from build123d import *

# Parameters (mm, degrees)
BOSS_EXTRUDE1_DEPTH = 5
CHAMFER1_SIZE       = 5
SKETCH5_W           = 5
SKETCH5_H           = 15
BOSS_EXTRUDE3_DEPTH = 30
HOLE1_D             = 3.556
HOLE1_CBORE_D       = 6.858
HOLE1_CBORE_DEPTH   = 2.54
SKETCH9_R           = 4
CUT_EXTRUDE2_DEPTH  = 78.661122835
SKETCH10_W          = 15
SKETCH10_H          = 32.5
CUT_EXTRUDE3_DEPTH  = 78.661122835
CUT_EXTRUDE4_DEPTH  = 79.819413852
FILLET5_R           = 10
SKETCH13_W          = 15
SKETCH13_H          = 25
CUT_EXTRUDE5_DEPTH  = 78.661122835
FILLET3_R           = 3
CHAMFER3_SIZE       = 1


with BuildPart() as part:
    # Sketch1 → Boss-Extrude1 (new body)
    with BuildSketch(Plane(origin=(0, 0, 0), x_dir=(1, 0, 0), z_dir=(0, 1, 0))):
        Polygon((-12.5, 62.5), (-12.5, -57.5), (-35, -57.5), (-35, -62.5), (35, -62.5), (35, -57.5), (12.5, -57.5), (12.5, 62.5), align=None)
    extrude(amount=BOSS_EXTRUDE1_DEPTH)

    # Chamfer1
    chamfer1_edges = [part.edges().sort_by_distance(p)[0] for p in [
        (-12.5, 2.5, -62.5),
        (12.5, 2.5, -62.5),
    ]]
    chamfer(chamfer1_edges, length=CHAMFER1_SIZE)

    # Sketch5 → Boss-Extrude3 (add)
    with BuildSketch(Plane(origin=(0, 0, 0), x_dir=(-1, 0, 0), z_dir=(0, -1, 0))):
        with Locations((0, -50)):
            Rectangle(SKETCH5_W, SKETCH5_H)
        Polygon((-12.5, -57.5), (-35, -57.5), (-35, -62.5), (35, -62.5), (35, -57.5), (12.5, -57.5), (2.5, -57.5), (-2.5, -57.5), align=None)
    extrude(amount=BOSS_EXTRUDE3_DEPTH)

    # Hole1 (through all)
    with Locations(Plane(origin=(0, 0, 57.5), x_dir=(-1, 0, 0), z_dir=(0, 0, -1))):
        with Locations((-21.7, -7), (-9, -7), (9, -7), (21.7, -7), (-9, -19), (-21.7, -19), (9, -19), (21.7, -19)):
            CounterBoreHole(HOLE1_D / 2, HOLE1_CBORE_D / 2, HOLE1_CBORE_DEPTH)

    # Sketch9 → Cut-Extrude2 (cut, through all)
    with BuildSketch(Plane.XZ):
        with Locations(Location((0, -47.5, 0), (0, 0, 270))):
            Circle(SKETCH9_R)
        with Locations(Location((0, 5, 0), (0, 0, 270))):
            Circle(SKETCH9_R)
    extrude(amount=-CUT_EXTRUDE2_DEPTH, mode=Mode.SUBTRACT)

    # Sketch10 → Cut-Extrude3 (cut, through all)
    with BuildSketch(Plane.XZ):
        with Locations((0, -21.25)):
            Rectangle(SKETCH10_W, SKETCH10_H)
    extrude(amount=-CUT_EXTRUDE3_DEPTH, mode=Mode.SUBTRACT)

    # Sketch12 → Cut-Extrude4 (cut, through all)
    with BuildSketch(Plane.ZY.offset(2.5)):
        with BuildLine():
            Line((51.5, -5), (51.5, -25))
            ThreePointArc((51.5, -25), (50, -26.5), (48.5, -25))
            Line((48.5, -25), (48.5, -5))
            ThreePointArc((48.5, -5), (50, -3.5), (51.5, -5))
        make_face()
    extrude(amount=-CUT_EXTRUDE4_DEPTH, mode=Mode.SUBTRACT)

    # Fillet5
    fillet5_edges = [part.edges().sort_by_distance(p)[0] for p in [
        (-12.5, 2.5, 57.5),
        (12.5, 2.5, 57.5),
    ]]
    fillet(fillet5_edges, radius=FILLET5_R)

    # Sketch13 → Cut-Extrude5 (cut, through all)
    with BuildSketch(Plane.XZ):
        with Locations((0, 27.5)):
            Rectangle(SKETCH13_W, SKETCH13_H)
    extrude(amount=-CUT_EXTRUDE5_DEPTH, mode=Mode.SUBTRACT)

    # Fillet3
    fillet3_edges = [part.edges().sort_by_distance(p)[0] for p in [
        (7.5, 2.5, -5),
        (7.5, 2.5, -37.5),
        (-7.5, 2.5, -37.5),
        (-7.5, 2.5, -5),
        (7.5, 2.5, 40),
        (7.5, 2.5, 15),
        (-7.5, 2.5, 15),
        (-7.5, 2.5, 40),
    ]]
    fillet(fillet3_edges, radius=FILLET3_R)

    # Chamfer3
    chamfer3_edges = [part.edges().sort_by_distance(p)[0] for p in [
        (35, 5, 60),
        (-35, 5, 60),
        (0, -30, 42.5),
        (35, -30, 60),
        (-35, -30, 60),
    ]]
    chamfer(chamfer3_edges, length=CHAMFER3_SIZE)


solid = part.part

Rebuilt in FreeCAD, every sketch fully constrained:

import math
import FreeCAD as App
import Part
import Sketcher
from FreeCAD import Vector
Q = App.Units.Quantity


def edges_at(feature, points):
    """Names of the edges that pass closest to the given points."""
    edges = feature.Shape.Edges
    near = lambda p: min(range(len(edges)), key=lambda i: edges[i].distToShape(Part.Vertex(*p))[0])
    return sorted({f"Edge{near(p) + 1}" for p in points})

doc = App.newDocument("Part")
body = doc.addObject("PartDesign::Body", "Body")

sketch1 = body.newObject("Sketcher::SketchObject", "Sketch")
sketch1.AttachmentSupport = (doc.getObject("XZ_Plane"), [""])
sketch1.MapMode = "FlatFace"
sketch1.addGeometry(Part.LineSegment(Vector(-12, -62, 0), Vector(-12, 58, 0)), False)
sketch1.addGeometry(Part.LineSegment(Vector(-12, 58, 0), Vector(-35, 58, 0)), False)
sketch1.addGeometry(Part.LineSegment(Vector(-35, 58, 0), Vector(-35, 62, 0)), False)
sketch1.addGeometry(Part.LineSegment(Vector(-35, 62, 0), Vector(35, 62, 0)), False)
sketch1.addGeometry(Part.LineSegment(Vector(35, 62, 0), Vector(35, 58, 0)), False)
sketch1.addGeometry(Part.LineSegment(Vector(35, 58, 0), Vector(12, 58, 0)), False)
sketch1.addGeometry(Part.LineSegment(Vector(12, 58, 0), Vector(12, -62, 0)), False)
sketch1.addGeometry(Part.LineSegment(Vector(12, -62, 0), Vector(-12, -62, 0)), False)
sketch1.addConstraint(Sketcher.Constraint("Coincident", 0, 2, 1, 1))
sketch1.addConstraint(Sketcher.Constraint("Coincident", 1, 2, 2, 1))
sketch1.addConstraint(Sketcher.Constraint("Coincident", 2, 2, 3, 1))
sketch1.addConstraint(Sketcher.Constraint("Coincident", 3, 2, 4, 1))
sketch1.addConstraint(Sketcher.Constraint("Coincident", 4, 2, 5, 1))
sketch1.addConstraint(Sketcher.Constraint("Coincident", 5, 2, 6, 1))
sketch1.addConstraint(Sketcher.Constraint("Coincident", 6, 2, 7, 1))
sketch1.addConstraint(Sketcher.Constraint("Coincident", 7, 2, 0, 1))
sketch1.addConstraint(Sketcher.Constraint("Vertical", 0))
sketch1.addConstraint(Sketcher.Constraint("Horizontal", 1))
sketch1.addConstraint(Sketcher.Constraint("Vertical", 2))
sketch1.addConstraint(Sketcher.Constraint("Horizontal", 3))
sketch1.addConstraint(Sketcher.Constraint("Vertical", 4))
sketch1.addConstraint(Sketcher.Constraint("Horizontal", 5))
sketch1.addConstraint(Sketcher.Constraint("Vertical", 6))
sketch1.addConstraint(Sketcher.Constraint("Horizontal", 7))
sketch1.addConstraint(Sketcher.Constraint("Symmetric", 1, 2, 4, 2, -2))
sketch1.addConstraint(Sketcher.Constraint("Equal", 1, 5))
sketch1.addConstraint(Sketcher.Constraint("DistanceX", 3, 1, 3, 2, Q("70 mm")))
sketch1.addConstraint(Sketcher.Constraint("DistanceX", 7, 2, 7, 1, Q("25 mm")))
sketch1.addConstraint(Sketcher.Constraint("DistanceY", 0, 1, 0, 2, Q("120 mm")))
sketch1.addConstraint(Sketcher.Constraint("DistanceY", 2, 1, 2, 2, Q("5 mm")))
sketch1.addConstraint(Sketcher.Constraint("DistanceY", -1, 1, 0, 2, Q("57.5 mm")))
pad1 = body.newObject("PartDesign::Pad", "Pad")
pad1.Profile = sketch1
pad1.Length = 5
pad1.Reversed = True
doc.recompute()

chamfer = body.newObject("PartDesign::Chamfer", "Chamfer")
chamfer.Base = (pad1, edges_at(pad1, [(-12.5, 2.5, -62.5), (12.5, 2.5, -62.5)]))
chamfer.Size = 5

sketch2 = body.newObject("Sketcher::SketchObject", "Sketch001")
sketch2.AttachmentSupport = (doc.getObject("XZ_Plane"), [""])
sketch2.MapMode = "FlatFace"
sketch2.addGeometry(Part.LineSegment(Vector(2, 42, 0), Vector(2, 58, 0)), False)
sketch2.addGeometry(Part.LineSegment(Vector(2, 58, 0), Vector(35, 58, 0)), False)
sketch2.addGeometry(Part.LineSegment(Vector(35, 58, 0), Vector(35, 62, 0)), False)
sketch2.addGeometry(Part.LineSegment(Vector(35, 62, 0), Vector(-35, 62, 0)), False)
sketch2.addGeometry(Part.LineSegment(Vector(-35, 62, 0), Vector(-35, 58, 0)), False)
sketch2.addGeometry(Part.LineSegment(Vector(-35, 58, 0), Vector(-2, 58, 0)), False)
sketch2.addGeometry(Part.LineSegment(Vector(-2, 58, 0), Vector(-2, 42, 0)), False)
sketch2.addGeometry(Part.LineSegment(Vector(-2, 42, 0), Vector(2, 42, 0)), False)
sketch2.addConstraint(Sketcher.Constraint("Coincident", 0, 2, 1, 1))
sketch2.addConstraint(Sketcher.Constraint("Coincident", 1, 2, 2, 1))
sketch2.addConstraint(Sketcher.Constraint("Coincident", 2, 2, 3, 1))
sketch2.addConstraint(Sketcher.Constraint("Coincident", 3, 2, 4, 1))
sketch2.addConstraint(Sketcher.Constraint("Coincident", 4, 2, 5, 1))
sketch2.addConstraint(Sketcher.Constraint("Coincident", 5, 2, 6, 1))
sketch2.addConstraint(Sketcher.Constraint("Coincident", 6, 2, 7, 1))
sketch2.addConstraint(Sketcher.Constraint("Coincident", 7, 2, 0, 1))
sketch2.addConstraint(Sketcher.Constraint("Vertical", 0))
sketch2.addConstraint(Sketcher.Constraint("Horizontal", 1))
sketch2.addConstraint(Sketcher.Constraint("Vertical", 2))
sketch2.addConstraint(Sketcher.Constraint("Horizontal", 3))
sketch2.addConstraint(Sketcher.Constraint("Vertical", 4))
sketch2.addConstraint(Sketcher.Constraint("Horizontal", 5))
sketch2.addConstraint(Sketcher.Constraint("Vertical", 6))
sketch2.addConstraint(Sketcher.Constraint("Horizontal", 7))
sketch2.addConstraint(Sketcher.Constraint("Symmetric", 1, 2, 4, 2, -2))
sketch2.addConstraint(Sketcher.Constraint("Equal", 1, 5))
sketch2.addConstraint(Sketcher.Constraint("Equal", 7, 2))
sketch2.addConstraint(Sketcher.Constraint("DistanceX", 3, 2, 3, 1, Q("70 mm")))
sketch2.addConstraint(Sketcher.Constraint("DistanceX", 7, 1, 7, 2, Q("5 mm")))
sketch2.addConstraint(Sketcher.Constraint("DistanceY", 0, 1, 0, 2, Q("15 mm")))
sketch2.addConstraint(Sketcher.Constraint("DistanceY", -1, 1, 0, 2, Q("57.5 mm")))
pad2 = body.newObject("PartDesign::Pad", "Pad001")
pad2.Profile = sketch2
pad2.Length = 30

sketch3 = body.newObject("Sketcher::SketchObject", "Sketch002")
sketch3.AttachmentSupport = (doc.getObject("XY_Plane"), [""])
sketch3.MapMode = "FlatFace"
sketch3.AttachmentOffset = App.Placement(Vector(0, 0, 57.5), App.Rotation())
sketch3.addGeometry(Part.Circle(Vector(21.7, -7, 0), Vector(0, 0, 1), 1.8), False)
sketch3.addGeometry(Part.Circle(Vector(9, -7, 0), Vector(0, 0, 1), 1.8), False)
sketch3.addGeometry(Part.Circle(Vector(-9, -7, 0), Vector(0, 0, 1), 1.8), False)
sketch3.addGeometry(Part.Circle(Vector(-21.7, -7, 0), Vector(0, 0, 1), 1.8), False)
sketch3.addGeometry(Part.Circle(Vector(9, -19, 0), Vector(0, 0, 1), 1.8), False)
sketch3.addGeometry(Part.Circle(Vector(21.7, -19, 0), Vector(0, 0, 1), 1.8), False)
sketch3.addGeometry(Part.Circle(Vector(-9, -19, 0), Vector(0, 0, 1), 1.8), False)
sketch3.addGeometry(Part.Circle(Vector(-21.7, -19, 0), Vector(0, 0, 1), 1.8), False)
sketch3.addConstraint(Sketcher.Constraint("Equal", 0, 1))
sketch3.addConstraint(Sketcher.Constraint("Equal", 1, 2))
sketch3.addConstraint(Sketcher.Constraint("Equal", 2, 3))
sketch3.addConstraint(Sketcher.Constraint("Equal", 3, 4))
sketch3.addConstraint(Sketcher.Constraint("Equal", 4, 5))
sketch3.addConstraint(Sketcher.Constraint("Equal", 5, 6))
sketch3.addConstraint(Sketcher.Constraint("Equal", 6, 7))
sketch3.addConstraint(Sketcher.Constraint("Symmetric", 1, 3, 2, 3, -2))
sketch3.addConstraint(Sketcher.Constraint("Symmetric", 0, 3, 3, 3, -2))
sketch3.addConstraint(Sketcher.Constraint("Symmetric", 4, 3, 6, 3, -2))
sketch3.addConstraint(Sketcher.Constraint("Symmetric", 5, 3, 7, 3, -2))
sketch3.addConstraint(Sketcher.Constraint("Horizontal", 0, 3, 1, 3))
sketch3.addConstraint(Sketcher.Constraint("Horizontal", 4, 3, 5, 3))
sketch3.addConstraint(Sketcher.Constraint("Vertical", 1, 3, 4, 3))
sketch3.addConstraint(Sketcher.Constraint("Vertical", 0, 3, 5, 3))
sketch3.addConstraint(Sketcher.Constraint("Diameter", 0, Q("3.556 mm")))
sketch3.addConstraint(Sketcher.Constraint("DistanceY", 0, 3, -1, 1, Q("7 mm")))
sketch3.addConstraint(Sketcher.Constraint("DistanceX", -1, 1, 1, 3, Q("9 mm")))
sketch3.addConstraint(Sketcher.Constraint("DistanceY", 4, 3, -1, 1, Q("19 mm")))
sketch3.addConstraint(Sketcher.Constraint("DistanceX", -1, 1, 0, 3, Q("21.7 mm")))
doc.recompute()
hole = body.newObject("PartDesign::Hole", "Hole")
hole.Profile = sketch3
hole.ThreadType = "None"
hole.Diameter = 3.556
hole.DepthType = "ThroughAll"
hole.HoleCutType = "Counterbore"
hole.HoleCutDiameter = 6.858
hole.HoleCutDepth = 2.54
hole.Reversed = True

sketch4 = body.newObject("Sketcher::SketchObject", "Sketch003")
sketch4.AttachmentSupport = (doc.getObject("XZ_Plane"), [""])
sketch4.MapMode = "FlatFace"
sketch4.addGeometry(Part.Circle(Vector(0, -47.5, 0), Vector(0, 0, 1), 4), False)
sketch4.addGeometry(Part.Circle(Vector(0, 5, 0), Vector(0, 0, 1), 4), False)
sketch4.addConstraint(Sketcher.Constraint("Equal", 0, 1))
sketch4.addConstraint(Sketcher.Constraint("PointOnObject", 0, 3, -2))
sketch4.addConstraint(Sketcher.Constraint("PointOnObject", 1, 3, -2))
sketch4.addConstraint(Sketcher.Constraint("Diameter", 0, Q("8 mm")))
sketch4.addConstraint(Sketcher.Constraint("DistanceY", -1, 1, 1, 3, Q("5 mm")))
sketch4.addConstraint(Sketcher.Constraint("DistanceY", 0, 3, -1, 1, Q("47.5 mm")))
pocket1 = body.newObject("PartDesign::Pocket", "Pocket")
pocket1.Profile = sketch4
pocket1.Type = "ThroughAll"

sketch5 = body.newObject("Sketcher::SketchObject", "Sketch004")
sketch5.AttachmentSupport = (doc.getObject("XZ_Plane"), [""])
sketch5.MapMode = "FlatFace"
sketch5.addGeometry(Part.LineSegment(Vector(-8, -5, 0), Vector(-8, -38, 0)), False)
sketch5.addGeometry(Part.LineSegment(Vector(-8, -38, 0), Vector(8, -38, 0)), False)
sketch5.addGeometry(Part.LineSegment(Vector(8, -38, 0), Vector(8, -5, 0)), False)
sketch5.addGeometry(Part.LineSegment(Vector(8, -5, 0), Vector(-8, -5, 0)), False)
sketch5.addConstraint(Sketcher.Constraint("Coincident", 0, 2, 1, 1))
sketch5.addConstraint(Sketcher.Constraint("Coincident", 1, 2, 2, 1))
sketch5.addConstraint(Sketcher.Constraint("Coincident", 2, 2, 3, 1))
sketch5.addConstraint(Sketcher.Constraint("Coincident", 3, 2, 0, 1))
sketch5.addConstraint(Sketcher.Constraint("Vertical", 0))
sketch5.addConstraint(Sketcher.Constraint("Horizontal", 1))
sketch5.addConstraint(Sketcher.Constraint("Vertical", 2))
sketch5.addConstraint(Sketcher.Constraint("Horizontal", 3))
sketch5.addConstraint(Sketcher.Constraint("DistanceX", 1, 1, 1, 2, Q("15 mm")))
sketch5.addConstraint(Sketcher.Constraint("DistanceY", 0, 2, 0, 1, Q("32.5 mm")))
sketch5.addConstraint(Sketcher.Constraint("DistanceY", 2, 2, -1, 1, Q("5 mm")))
sketch5.addConstraint(Sketcher.Constraint("DistanceX", 0, 2, -1, 1, Q("7.5 mm")))
pocket2 = body.newObject("PartDesign::Pocket", "Pocket001")
pocket2.Profile = sketch5
pocket2.Type = "ThroughAll"

sketch6 = body.newObject("Sketcher::SketchObject", "Sketch005")
sketch6.AttachmentSupport = (doc.getObject("YZ_Plane"), [""])
sketch6.MapMode = "FlatFace"
sketch6.AttachmentOffset = App.Placement(Vector(0, 0, -2.5), App.Rotation())
sketch6.addGeometry(Part.LineSegment(Vector(-25, 51.5, 0), Vector(-5, 51.5, 0)), False)
sketch6.addGeometry(Part.ArcOfCircle(Part.Circle(Vector(-5, 50, 0), Vector(0, 0, 1), 1.5), math.radians(-90), math.radians(90)), False)
sketch6.addGeometry(Part.LineSegment(Vector(-5, 48.5, 0), Vector(-25, 48.5, 0)), False)
sketch6.addGeometry(Part.ArcOfCircle(Part.Circle(Vector(-25, 50, 0), Vector(0, 0, 1), 1.5), math.radians(90), math.radians(270)), False)
sketch6.addConstraint(Sketcher.Constraint("Tangent", 0, 2, 1, 2))
sketch6.addConstraint(Sketcher.Constraint("Tangent", 1, 1, 2, 1))
sketch6.addConstraint(Sketcher.Constraint("Tangent", 2, 2, 3, 2))
sketch6.addConstraint(Sketcher.Constraint("Tangent", 3, 1, 0, 1))
sketch6.addConstraint(Sketcher.Constraint("Horizontal", 0))
sketch6.addConstraint(Sketcher.Constraint("Horizontal", 2))
sketch6.addConstraint(Sketcher.Constraint("Radius", 1, Q("1.5 mm")))
sketch6.addConstraint(Sketcher.Constraint("DistanceX", 0, 1, 0, 2, Q("20 mm")))
sketch6.addConstraint(Sketcher.Constraint("DistanceX", 1, 3, -1, 1, Q("5 mm")))
sketch6.addConstraint(Sketcher.Constraint("DistanceY", -1, 1, 1, 3, Q("50 mm")))
pocket3 = body.newObject("PartDesign::Pocket", "Pocket002")
pocket3.Profile = sketch6
pocket3.Type = "ThroughAll"
pocket3.Reversed = True
doc.recompute()

fillet = body.newObject("PartDesign::Fillet", "Fillet")
fillet.Base = (pocket3, edges_at(pocket3, [(-12.5, 2.5, 57.5), (12.5, 2.5, 57.5)]))
fillet.Radius = 10

sketch7 = body.newObject("Sketcher::SketchObject", "Sketch006")
sketch7.AttachmentSupport = (doc.getObject("XZ_Plane"), [""])
sketch7.MapMode = "FlatFace"
sketch7.addGeometry(Part.LineSegment(Vector(-8, 40, 0), Vector(-8, 15, 0)), False)
sketch7.addGeometry(Part.LineSegment(Vector(-8, 15, 0), Vector(8, 15, 0)), False)
sketch7.addGeometry(Part.LineSegment(Vector(8, 15, 0), Vector(8, 40, 0)), False)
sketch7.addGeometry(Part.LineSegment(Vector(8, 40, 0), Vector(-8, 40, 0)), False)
sketch7.addConstraint(Sketcher.Constraint("Coincident", 0, 2, 1, 1))
sketch7.addConstraint(Sketcher.Constraint("Coincident", 1, 2, 2, 1))
sketch7.addConstraint(Sketcher.Constraint("Coincident", 2, 2, 3, 1))
sketch7.addConstraint(Sketcher.Constraint("Coincident", 3, 2, 0, 1))
sketch7.addConstraint(Sketcher.Constraint("Vertical", 0))
sketch7.addConstraint(Sketcher.Constraint("Horizontal", 1))
sketch7.addConstraint(Sketcher.Constraint("Vertical", 2))
sketch7.addConstraint(Sketcher.Constraint("Horizontal", 3))
sketch7.addConstraint(Sketcher.Constraint("DistanceX", 1, 1, 1, 2, Q("15 mm")))
sketch7.addConstraint(Sketcher.Constraint("DistanceY", 0, 2, 0, 1, Q("25 mm")))
sketch7.addConstraint(Sketcher.Constraint("DistanceY", -1, 1, 0, 2, Q("15 mm")))
sketch7.addConstraint(Sketcher.Constraint("DistanceX", 0, 2, -1, 1, Q("7.5 mm")))
pocket4 = body.newObject("PartDesign::Pocket", "Pocket003")
pocket4.Profile = sketch7
pocket4.Type = "ThroughAll"
doc.recompute()

fillet2 = body.newObject("PartDesign::Fillet", "Fillet001")
fillet2.Base = (pocket4, edges_at(pocket4, [
    (7.5, 2.5, -5),
    (7.5, 2.5, -37.5),
    (-7.5, 2.5, -37.5),
    (-7.5, 2.5, -5),
    (7.5, 2.5, 40),
    (7.5, 2.5, 15),
    (-7.5, 2.5, 15),
    (-7.5, 2.5, 40),
]))
fillet2.Radius = 3
doc.recompute()

chamfer2 = body.newObject("PartDesign::Chamfer", "Chamfer001")
chamfer2.Base = (fillet2, edges_at(fillet2, [
    (35, 5, 60),
    (-35, 5, 60),
    (0, -30, 42.5),
    (35, -30, 60),
    (-35, -30, 60),
]))
chamfer2.Size = 1

doc.recompute()
